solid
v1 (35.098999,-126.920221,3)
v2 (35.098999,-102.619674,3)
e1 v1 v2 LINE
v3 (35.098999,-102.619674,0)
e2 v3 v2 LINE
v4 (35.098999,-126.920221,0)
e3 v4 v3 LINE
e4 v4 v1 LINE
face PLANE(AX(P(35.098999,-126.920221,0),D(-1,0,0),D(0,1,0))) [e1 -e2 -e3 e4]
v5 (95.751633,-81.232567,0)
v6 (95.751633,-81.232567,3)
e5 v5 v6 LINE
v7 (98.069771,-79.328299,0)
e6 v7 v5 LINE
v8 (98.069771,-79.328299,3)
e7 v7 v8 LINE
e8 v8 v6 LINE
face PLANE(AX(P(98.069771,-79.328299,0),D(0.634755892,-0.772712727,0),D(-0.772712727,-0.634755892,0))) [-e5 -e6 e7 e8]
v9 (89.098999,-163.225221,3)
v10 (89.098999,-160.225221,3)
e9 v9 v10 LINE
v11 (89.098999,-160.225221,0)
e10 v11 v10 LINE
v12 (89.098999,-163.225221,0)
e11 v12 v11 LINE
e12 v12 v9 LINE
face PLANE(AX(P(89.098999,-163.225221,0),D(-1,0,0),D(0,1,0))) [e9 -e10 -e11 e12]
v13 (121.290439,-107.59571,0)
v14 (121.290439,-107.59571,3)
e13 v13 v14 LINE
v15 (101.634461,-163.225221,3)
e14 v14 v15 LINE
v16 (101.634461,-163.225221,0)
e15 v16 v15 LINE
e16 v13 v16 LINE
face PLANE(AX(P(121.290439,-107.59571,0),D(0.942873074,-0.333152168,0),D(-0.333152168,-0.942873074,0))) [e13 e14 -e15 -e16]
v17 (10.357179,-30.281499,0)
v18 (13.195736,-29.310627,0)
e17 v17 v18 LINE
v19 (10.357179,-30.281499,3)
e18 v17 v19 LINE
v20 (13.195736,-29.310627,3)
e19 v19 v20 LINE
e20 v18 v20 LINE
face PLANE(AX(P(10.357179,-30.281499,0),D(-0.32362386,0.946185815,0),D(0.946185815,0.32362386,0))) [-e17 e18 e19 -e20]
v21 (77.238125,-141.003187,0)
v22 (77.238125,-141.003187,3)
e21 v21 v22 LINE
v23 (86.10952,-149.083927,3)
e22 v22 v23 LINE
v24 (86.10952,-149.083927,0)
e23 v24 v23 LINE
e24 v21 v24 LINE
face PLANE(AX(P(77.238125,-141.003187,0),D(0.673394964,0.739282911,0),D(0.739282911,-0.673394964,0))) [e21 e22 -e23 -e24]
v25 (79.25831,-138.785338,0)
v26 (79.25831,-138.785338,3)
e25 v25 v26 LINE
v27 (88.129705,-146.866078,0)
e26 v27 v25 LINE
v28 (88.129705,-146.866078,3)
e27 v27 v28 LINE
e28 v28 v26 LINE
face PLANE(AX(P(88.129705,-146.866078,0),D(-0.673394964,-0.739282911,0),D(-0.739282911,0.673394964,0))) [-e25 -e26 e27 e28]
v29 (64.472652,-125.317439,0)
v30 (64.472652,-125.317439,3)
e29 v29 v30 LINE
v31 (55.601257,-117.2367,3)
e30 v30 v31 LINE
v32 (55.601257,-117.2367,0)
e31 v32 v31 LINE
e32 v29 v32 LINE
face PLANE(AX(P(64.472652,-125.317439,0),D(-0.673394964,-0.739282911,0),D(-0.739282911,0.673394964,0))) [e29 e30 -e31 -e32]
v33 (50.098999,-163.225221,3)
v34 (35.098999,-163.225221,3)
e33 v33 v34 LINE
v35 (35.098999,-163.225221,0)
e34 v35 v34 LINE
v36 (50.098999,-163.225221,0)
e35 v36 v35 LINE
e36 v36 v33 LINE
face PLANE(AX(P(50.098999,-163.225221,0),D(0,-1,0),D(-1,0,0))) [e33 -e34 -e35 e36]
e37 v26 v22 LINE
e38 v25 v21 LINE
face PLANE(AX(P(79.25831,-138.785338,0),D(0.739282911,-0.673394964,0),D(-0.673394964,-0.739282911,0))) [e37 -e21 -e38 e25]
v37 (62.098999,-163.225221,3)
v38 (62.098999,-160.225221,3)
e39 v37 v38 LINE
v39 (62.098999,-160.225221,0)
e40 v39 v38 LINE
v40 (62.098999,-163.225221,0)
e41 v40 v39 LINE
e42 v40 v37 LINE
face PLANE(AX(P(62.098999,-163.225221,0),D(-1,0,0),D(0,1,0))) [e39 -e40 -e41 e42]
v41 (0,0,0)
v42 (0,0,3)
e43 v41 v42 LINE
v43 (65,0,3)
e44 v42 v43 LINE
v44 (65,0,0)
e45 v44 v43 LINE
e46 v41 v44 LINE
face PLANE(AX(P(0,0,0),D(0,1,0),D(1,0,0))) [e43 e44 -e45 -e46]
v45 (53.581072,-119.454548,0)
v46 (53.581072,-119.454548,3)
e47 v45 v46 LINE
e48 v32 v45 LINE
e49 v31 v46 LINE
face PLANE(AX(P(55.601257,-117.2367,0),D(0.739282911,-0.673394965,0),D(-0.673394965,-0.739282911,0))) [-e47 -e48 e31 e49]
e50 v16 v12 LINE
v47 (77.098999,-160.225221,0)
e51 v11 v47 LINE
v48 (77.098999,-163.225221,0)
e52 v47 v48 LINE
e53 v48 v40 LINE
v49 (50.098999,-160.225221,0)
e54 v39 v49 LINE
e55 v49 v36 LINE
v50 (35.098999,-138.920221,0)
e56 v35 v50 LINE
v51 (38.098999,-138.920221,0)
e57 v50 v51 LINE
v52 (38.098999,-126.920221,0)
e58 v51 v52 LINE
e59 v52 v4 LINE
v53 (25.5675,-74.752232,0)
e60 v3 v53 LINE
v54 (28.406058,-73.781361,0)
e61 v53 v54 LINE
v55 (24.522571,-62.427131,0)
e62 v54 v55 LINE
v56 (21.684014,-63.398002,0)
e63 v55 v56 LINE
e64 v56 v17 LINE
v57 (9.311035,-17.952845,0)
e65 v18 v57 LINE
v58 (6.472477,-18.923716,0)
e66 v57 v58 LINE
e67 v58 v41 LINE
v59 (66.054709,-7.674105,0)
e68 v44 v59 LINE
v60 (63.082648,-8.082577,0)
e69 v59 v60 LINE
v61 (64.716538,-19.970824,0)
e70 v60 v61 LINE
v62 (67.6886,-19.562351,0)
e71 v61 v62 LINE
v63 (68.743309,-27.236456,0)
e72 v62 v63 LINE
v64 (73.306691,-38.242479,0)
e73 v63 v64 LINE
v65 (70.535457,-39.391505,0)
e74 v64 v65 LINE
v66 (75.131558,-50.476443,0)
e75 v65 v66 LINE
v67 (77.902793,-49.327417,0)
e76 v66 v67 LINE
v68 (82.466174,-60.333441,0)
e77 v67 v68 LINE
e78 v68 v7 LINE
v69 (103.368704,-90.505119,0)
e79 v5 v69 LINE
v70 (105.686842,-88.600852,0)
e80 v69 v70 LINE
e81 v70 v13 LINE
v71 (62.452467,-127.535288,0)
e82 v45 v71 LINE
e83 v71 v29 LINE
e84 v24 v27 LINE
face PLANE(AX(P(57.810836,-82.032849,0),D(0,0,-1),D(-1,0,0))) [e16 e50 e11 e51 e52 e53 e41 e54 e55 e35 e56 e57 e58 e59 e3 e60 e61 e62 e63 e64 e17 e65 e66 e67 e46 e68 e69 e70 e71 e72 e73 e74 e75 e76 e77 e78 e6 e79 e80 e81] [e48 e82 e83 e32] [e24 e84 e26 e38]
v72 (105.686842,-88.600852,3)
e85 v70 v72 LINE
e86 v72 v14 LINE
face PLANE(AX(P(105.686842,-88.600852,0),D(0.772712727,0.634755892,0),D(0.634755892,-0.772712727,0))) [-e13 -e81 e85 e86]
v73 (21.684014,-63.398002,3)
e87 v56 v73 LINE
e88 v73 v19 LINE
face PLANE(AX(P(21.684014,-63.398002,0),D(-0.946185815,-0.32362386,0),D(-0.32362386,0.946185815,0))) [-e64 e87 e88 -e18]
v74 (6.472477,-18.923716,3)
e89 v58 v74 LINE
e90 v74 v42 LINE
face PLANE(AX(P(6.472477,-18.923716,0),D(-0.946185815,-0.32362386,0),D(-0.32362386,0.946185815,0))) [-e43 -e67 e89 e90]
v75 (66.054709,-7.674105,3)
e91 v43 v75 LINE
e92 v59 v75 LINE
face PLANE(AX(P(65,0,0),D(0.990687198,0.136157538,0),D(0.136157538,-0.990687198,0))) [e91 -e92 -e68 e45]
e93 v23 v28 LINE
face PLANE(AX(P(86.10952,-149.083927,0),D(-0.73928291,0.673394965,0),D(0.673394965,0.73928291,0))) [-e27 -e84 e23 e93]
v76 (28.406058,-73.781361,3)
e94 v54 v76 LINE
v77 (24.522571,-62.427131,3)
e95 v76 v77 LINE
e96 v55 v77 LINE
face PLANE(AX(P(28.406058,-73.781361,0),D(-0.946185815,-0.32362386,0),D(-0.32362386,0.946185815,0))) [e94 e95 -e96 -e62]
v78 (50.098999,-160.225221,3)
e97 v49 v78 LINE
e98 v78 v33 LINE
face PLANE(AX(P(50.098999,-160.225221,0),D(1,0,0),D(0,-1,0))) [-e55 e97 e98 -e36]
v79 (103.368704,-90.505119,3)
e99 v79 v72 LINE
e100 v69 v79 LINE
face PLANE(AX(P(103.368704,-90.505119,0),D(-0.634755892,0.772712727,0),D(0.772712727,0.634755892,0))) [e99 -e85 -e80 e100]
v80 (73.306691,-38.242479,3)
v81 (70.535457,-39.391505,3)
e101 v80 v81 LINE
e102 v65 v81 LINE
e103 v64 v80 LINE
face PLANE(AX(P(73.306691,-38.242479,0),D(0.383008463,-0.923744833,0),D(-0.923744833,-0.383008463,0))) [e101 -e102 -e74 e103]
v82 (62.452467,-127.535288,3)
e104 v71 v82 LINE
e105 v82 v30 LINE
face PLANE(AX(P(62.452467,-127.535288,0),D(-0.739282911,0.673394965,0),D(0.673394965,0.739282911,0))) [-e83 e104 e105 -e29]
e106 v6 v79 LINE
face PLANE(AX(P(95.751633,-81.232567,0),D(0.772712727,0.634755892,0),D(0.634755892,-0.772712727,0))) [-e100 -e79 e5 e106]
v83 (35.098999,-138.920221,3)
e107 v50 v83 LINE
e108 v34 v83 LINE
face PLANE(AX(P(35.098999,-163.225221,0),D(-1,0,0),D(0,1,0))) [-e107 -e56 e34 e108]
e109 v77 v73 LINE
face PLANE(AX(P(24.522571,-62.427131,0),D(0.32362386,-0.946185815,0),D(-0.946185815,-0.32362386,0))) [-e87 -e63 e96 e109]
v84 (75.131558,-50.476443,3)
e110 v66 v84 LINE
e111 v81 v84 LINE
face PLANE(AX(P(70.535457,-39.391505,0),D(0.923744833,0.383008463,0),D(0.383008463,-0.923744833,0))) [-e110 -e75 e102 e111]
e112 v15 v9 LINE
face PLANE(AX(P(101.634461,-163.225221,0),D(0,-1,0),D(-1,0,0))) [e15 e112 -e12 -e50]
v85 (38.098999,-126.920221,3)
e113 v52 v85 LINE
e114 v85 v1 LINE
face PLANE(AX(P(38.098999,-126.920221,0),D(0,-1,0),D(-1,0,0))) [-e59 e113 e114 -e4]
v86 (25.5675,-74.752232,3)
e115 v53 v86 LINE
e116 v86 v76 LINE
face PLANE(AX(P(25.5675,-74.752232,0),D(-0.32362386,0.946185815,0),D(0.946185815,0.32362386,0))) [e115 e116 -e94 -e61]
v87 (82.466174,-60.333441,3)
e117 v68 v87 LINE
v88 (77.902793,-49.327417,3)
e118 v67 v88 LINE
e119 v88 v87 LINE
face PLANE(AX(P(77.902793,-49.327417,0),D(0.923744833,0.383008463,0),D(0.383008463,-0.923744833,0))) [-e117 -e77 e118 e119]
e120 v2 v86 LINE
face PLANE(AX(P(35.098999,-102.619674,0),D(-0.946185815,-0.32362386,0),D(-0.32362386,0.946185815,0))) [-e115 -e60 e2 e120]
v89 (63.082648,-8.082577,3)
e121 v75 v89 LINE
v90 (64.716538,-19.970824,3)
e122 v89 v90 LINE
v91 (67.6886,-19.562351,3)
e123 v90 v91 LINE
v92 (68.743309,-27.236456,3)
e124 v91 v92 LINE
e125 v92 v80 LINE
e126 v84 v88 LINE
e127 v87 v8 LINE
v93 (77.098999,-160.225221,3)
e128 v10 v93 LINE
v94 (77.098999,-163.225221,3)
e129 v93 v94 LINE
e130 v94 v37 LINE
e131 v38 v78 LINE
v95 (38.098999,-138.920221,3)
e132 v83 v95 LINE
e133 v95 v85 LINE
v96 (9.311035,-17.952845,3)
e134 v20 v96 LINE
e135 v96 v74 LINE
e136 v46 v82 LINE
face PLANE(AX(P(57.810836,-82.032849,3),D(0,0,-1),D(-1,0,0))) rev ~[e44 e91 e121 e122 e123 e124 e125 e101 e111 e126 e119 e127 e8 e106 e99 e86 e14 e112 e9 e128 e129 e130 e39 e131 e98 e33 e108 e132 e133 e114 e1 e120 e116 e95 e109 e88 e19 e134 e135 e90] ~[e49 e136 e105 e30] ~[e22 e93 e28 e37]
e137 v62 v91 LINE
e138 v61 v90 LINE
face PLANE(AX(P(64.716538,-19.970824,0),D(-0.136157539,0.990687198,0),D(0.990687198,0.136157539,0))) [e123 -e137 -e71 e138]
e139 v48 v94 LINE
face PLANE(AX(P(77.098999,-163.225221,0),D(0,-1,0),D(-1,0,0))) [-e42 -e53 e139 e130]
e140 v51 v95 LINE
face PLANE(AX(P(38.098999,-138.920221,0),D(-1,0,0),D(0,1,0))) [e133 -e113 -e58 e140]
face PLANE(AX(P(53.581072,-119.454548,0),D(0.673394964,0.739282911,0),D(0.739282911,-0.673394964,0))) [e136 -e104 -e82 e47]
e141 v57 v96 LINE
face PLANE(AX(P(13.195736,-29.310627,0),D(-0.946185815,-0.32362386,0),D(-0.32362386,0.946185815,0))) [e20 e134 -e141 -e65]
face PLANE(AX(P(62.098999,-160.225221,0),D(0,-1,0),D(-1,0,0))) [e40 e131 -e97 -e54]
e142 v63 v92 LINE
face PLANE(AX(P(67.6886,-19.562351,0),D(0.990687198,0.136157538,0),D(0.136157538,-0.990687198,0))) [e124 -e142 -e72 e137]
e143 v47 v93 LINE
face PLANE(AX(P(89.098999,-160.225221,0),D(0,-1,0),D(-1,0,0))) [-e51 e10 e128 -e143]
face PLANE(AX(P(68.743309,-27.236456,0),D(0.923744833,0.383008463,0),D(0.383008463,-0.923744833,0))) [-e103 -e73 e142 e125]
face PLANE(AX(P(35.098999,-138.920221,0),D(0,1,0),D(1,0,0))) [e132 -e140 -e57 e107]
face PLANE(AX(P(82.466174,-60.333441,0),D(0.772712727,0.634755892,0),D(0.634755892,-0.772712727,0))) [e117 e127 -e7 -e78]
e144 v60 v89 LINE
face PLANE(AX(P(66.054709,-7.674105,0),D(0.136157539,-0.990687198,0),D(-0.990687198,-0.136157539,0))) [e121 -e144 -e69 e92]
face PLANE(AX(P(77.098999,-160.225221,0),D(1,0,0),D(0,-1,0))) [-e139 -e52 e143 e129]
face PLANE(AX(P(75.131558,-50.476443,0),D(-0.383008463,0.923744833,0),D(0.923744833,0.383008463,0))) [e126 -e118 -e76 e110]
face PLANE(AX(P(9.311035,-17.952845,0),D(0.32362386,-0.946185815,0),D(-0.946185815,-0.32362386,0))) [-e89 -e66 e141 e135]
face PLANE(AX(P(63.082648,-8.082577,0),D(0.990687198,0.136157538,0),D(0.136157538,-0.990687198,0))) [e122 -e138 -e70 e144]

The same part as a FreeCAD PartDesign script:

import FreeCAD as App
import Part
import Sketcher
Q = App.Units.Quantity


def add_polygon(sketch, points):
    """Adds a closed chain of lines whose ends are joined by coincident constraints."""
    first, n = sketch.GeometryCount, len(points)
    for a, b in zip(points, points[1:] + points[:1]):
        sketch.addGeometry(Part.LineSegment(App.Vector(*a, 0), App.Vector(*b, 0)), False)
    for i in range(n):
        sketch.addConstraint(Sketcher.Constraint("Coincident", first + i, 2, first + (i + 1) % n, 1))

doc = App.newDocument("Part")
params = doc.addObject("Spreadsheet::Sheet", "Params")
for row, (alias, value) in enumerate([
    ("sketch1_width", "3 mm"),
    ("sketch1_width2", "15 mm"),
    ("sketch1_width3", "12 mm"),
    ("sketch1_width4", "65 mm"),
    ("sketch1_length", "59 mm"),
    ("pad1_length", "3 mm"),
], start=1):
    params.set(f"A{row}", alias)
    params.set(f"B{row}", "=" + value)
    params.setAlias(f"B{row}", alias)

body = doc.addObject("PartDesign::Body", "Body")

# Sketch on XY plane
sketch1 = body.newObject("Sketcher::SketchObject", "Sketch")
sketch1.AttachmentSupport = (doc.getObject("XY_Plane"), [""])
sketch1.MapMode = "FlatFace"
add_polygon(sketch1, [(25.6, -74.8), (35.1, -102.6), (35.1, -126.9), (38.1, -126.9), (38.1, -138.9), (35.1, -138.9), (35.1, -163.2), (50.1, -163.2), (50.1, -160.2), (62.1, -160.2), (62.1, -163.2), (77.1, -163.2), (77.1, -160.2), (89.1, -160.2), (89.1, -163.2), (101.6, -163.2), (121.3, -107.6), (105.7, -88.6), (103.4, -90.5), (95.8, -81.2), (98.1, -79.3), (82.5, -60.3), (77.9, -49.3), (75.1, -50.5), (70.5, -39.4), (73.3, -38.2), (68.7, -27.2), (67.7, -19.6), (64.7, -20), (63.1, -8.1), (66.1, -7.7), (65, 0), (0, 0), (6.5, -18.9), (9.3, -18), (13.2, -29.3), (10.4, -30.3), (21.7, -63.4), (24.5, -62.4), (28.4, -73.8)])  # lines 0-39
add_polygon(sketch1, [(77.2, -141), (79.3, -138.8), (88.1, -146.9), (86.1, -149.1)])  # lines 40-43
add_polygon(sketch1, [(53.6, -119.5), (55.6, -117.2), (64.5, -125.3), (62.5, -127.5)])  # lines 44-47
sketch1.addConstraint([
    Sketcher.Constraint("Vertical", 1),
    Sketcher.Constraint("Horizontal", 2),
    Sketcher.Constraint("Vertical", 3),
    Sketcher.Constraint("Horizontal", 4),
    Sketcher.Constraint("Vertical", 5),
    Sketcher.Constraint("Horizontal", 6),
    Sketcher.Constraint("Vertical", 7),
    Sketcher.Constraint("Horizontal", 8),
    Sketcher.Constraint("Vertical", 9),
    Sketcher.Constraint("Horizontal", 10),
    Sketcher.Constraint("Vertical", 11),
    Sketcher.Constraint("Horizontal", 12),
    Sketcher.Constraint("Vertical", 13),
    Sketcher.Constraint("Horizontal", 14),
    Sketcher.Constraint("Horizontal", 31),
    Sketcher.Constraint("Coincident", 31, 2, -1, 1),
    Sketcher.Constraint("Perpendicular", 16, 17),
    Sketcher.Constraint("Perpendicular", 17, 18),
    Sketcher.Constraint("Perpendicular", 18, 19),
    Sketcher.Constraint("Perpendicular", 19, 20),
    Sketcher.Constraint("Perpendicular", 21, 22),
    Sketcher.Constraint("Perpendicular", 22, 23),
    Sketcher.Constraint("Perpendicular", 23, 24),
    Sketcher.Constraint("Perpendicular", 24, 25),
    Sketcher.Constraint("Perpendicular", 26, 27),
    Sketcher.Constraint("Perpendicular", 27, 28),
    Sketcher.Constraint("Perpendicular", 28, 29),
    Sketcher.Constraint("Perpendicular", 29, 30),
    Sketcher.Constraint("Parallel", 0, 32),
    Sketcher.Constraint("Perpendicular", 32, 33),
    Sketcher.Constraint("Perpendicular", 33, 34),
    Sketcher.Constraint("Perpendicular", 34, 35),
    Sketcher.Constraint("Perpendicular", 35, 36),
    Sketcher.Constraint("Perpendicular", 36, 37),
    Sketcher.Constraint("Perpendicular", 37, 38),
    Sketcher.Constraint("Perpendicular", 38, 39),
    Sketcher.Constraint("Perpendicular", 40, 41),
    Sketcher.Constraint("Perpendicular", 41, 42),
    Sketcher.Constraint("Perpendicular", 42, 43),
    Sketcher.Constraint("Perpendicular", 43, 44),
    Sketcher.Constraint("Perpendicular", 44, 45),
    Sketcher.Constraint("Perpendicular", 45, 46),
    Sketcher.Constraint("Perpendicular", 46, 47),
    Sketcher.Constraint("Horizontal", 6, 2, 9, 2),
    Sketcher.Constraint("Horizontal", 8, 2, 11, 2),
    Sketcher.Constraint("Horizontal", 10, 2, 13, 2),
    Sketcher.Constraint("Vertical", 1, 2, 4, 2),
    Sketcher.Constraint("Equal", 6, 10),
    Sketcher.Constraint("Equal", 8, 12),
    Sketcher.Constraint("Equal", 12, 3),
    Sketcher.Constraint("Equal", 4, 7),
    Sketcher.Constraint("Equal", 17, 19),
    Sketcher.Constraint("Equal", 16, 20),
    Sketcher.Constraint("Equal", 19, 22),
    Sketcher.Constraint("Equal", 18, 23),
    Sketcher.Constraint("Equal", 22, 24),
    Sketcher.Constraint("Equal", 21, 25),
    Sketcher.Constraint("Equal", 24, 27),
    Sketcher.Constraint("Equal", 23, 28),
    Sketcher.Constraint("Equal", 27, 29),
    Sketcher.Constraint("Equal", 26, 30),
    Sketcher.Constraint("Equal", 29, 33),
    Sketcher.Constraint("Equal", 33, 35),
    Sketcher.Constraint("Equal", 35, 37),
    Sketcher.Constraint("Equal", 28, 38),
    Sketcher.Constraint("Equal", 37, 39),
    Sketcher.Constraint("Equal", 39, 40),
    Sketcher.Constraint("Equal", 38, 41),
    Sketcher.Constraint("Equal", 42, 44),
    Sketcher.Constraint("Equal", 43, 45),
    Sketcher.Constraint("DistanceX", 2, 1, 2, 2, Q("3 mm")),
    Sketcher.Constraint("DistanceX", 6, 1, 6, 2, Q("15 mm")),
    Sketcher.Constraint("DistanceX", 8, 1, 8, 2, Q("12 mm")),
    Sketcher.Constraint("DistanceX", 31, 2, 31, 1, Q("65 mm")),
    Sketcher.Constraint("Distance", 15, Q("59 mm")),
    Sketcher.Constraint("Distance", 17, Q("3 mm")),
    Sketcher.Constraint("Distance", 18, Q("12 mm")),
    Sketcher.Constraint("Distance", 32, Q("20 mm")),
    Sketcher.Constraint("Distance", 36, Q("35 mm")),
    Sketcher.Constraint("DistanceY", 5, 2, 5, 1, Q("24.305 mm")),
    Sketcher.Constraint("DistanceX", -1, 1, 0, 2, Q("35.098999 mm")),
    Sketcher.Constraint("DistanceY", 20, 2, 22, 2, Q("9.856998 mm")),
    Sketcher.Constraint("Distance", 0, Q("29.452399 mm")),
    Sketcher.Constraint("DistanceX", 14, 1, 14, 2, Q("12.535462 mm")),
    Sketcher.Constraint("DistanceY", 19, 2, -1, 1, Q("79.328299 mm")),
    Sketcher.Constraint("DistanceX", -1, 1, 26, 2, Q("67.6886 mm")),
    Sketcher.Constraint("DistanceY", 35, 2, -1, 1, Q("30.281499 mm")),
    Sketcher.Constraint("DistanceY", 44, 2, -1, 1, Q("117.2367 mm")),
    Sketcher.Constraint("DistanceY", 12, 2, 17, 2, Q("69.720102 mm")),
    Sketcher.Constraint("DistanceX", 23, 2, 22, 2, Q("4.596102 mm")),
    Sketcher.Constraint("DistanceY", 40, 2, 45, 2, Q("13.467899 mm")),
    Sketcher.Constraint("DistanceY", 1, 2, 1, 1, Q("24.300547 mm")),
    Sketcher.Constraint("DistanceX", -1, 1, 40, 2, Q("79.25831 mm")),
    Sketcher.Constraint("DistanceY", 40, 2, -1, 1, Q("138.785338 mm")),
    Sketcher.Constraint("DistanceX", -1, 1, 45, 2, Q("64.472652 mm")),
])
sketch1.setExpression("Constraints[118]", "Params.sketch1_width")
sketch1.setExpression("Constraints[119]", "Params.sketch1_width2")
sketch1.setExpression("Constraints[120]", "Params.sketch1_width3")
sketch1.setExpression("Constraints[121]", "Params.sketch1_width4")
sketch1.setExpression("Constraints[122]", "Params.sketch1_length")
pad1 = body.newObject("PartDesign::Pad", "Pad")
pad1.Profile = sketch1
pad1.setExpression("Length", "Params.pad1_length")

doc.recompute()
